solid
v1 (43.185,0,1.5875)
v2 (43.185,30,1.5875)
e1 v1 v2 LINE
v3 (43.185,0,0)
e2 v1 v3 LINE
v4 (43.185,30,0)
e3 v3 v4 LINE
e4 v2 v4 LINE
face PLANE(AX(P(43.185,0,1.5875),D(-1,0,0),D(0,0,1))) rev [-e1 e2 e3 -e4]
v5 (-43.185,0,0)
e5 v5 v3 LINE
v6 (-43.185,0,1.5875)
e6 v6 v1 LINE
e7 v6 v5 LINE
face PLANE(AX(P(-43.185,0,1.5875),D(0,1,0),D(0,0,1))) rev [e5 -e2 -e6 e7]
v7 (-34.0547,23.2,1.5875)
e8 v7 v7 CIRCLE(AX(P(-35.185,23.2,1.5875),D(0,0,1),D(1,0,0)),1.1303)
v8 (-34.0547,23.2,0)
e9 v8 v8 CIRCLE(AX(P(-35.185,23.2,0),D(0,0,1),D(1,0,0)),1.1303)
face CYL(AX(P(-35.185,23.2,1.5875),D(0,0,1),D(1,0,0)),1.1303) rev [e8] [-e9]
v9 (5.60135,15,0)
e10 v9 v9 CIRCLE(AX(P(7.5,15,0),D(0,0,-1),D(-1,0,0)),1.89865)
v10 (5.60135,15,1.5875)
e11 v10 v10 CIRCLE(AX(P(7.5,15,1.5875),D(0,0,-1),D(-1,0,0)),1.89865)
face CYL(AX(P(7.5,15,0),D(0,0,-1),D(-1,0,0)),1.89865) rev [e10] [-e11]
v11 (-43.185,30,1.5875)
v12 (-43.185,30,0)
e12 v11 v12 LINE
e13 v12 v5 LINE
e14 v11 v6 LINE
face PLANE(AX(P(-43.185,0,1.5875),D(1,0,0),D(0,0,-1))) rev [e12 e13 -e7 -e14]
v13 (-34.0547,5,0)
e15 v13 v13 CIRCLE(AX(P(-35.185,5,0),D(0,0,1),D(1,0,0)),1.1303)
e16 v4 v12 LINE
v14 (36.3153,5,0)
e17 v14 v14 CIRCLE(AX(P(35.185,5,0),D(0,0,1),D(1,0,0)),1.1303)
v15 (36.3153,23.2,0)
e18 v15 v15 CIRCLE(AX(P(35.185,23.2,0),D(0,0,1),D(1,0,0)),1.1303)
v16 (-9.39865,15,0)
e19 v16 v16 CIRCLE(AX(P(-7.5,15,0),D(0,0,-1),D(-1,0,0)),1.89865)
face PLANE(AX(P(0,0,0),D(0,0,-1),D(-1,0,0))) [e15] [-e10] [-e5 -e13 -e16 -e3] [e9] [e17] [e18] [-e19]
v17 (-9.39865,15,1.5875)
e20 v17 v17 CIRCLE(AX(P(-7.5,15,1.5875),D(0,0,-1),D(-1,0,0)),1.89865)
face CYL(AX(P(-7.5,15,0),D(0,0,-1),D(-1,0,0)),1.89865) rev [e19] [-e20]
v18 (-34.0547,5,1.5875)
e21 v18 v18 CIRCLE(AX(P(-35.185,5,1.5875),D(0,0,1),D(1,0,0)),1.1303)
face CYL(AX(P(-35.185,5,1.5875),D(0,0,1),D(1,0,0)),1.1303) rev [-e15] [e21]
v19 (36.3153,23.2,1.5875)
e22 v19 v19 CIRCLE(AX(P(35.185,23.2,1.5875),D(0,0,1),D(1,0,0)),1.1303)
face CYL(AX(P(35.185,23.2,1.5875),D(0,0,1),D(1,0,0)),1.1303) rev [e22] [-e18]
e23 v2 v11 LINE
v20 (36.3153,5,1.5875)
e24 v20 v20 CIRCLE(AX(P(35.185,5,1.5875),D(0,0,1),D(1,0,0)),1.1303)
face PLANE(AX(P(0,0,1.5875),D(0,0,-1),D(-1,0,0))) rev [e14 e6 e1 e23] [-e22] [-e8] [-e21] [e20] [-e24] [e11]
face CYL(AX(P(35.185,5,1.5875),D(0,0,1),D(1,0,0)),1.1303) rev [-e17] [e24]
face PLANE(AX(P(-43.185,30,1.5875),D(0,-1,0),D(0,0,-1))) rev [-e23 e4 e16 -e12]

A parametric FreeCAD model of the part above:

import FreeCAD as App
import Part
import Sketcher
Q = App.Units.Quantity


def add_polygon(sketch, points):
    """Adds a closed chain of lines whose ends are joined by coincident constraints."""
    first, n = sketch.GeometryCount, len(points)
    for a, b in zip(points, points[1:] + points[:1]):
        sketch.addGeometry(Part.LineSegment(App.Vector(*a, 0), App.Vector(*b, 0)), False)
    for i in range(n):
        sketch.addConstraint(Sketcher.Constraint("Coincident", first + i, 2, first + (i + 1) % n, 1))

doc = App.newDocument("Part")
body = doc.addObject("PartDesign::Body", "Body")

# Sketch on XY plane
sketch1 = body.newObject("Sketcher::SketchObject", "Sketch")
sketch1.AttachmentSupport = (doc.getObject("XY_Plane"), [""])
sketch1.MapMode = "FlatFace"
add_polygon(sketch1, [(-43, 30), (-43, 0), (43, 0), (43, 30)])  # lines 0-3
sketch1.addConstraint([
    Sketcher.Constraint("Vertical", 0),
    Sketcher.Constraint("Horizontal", 1),
    Sketcher.Constraint("Vertical", 2),
    Sketcher.Constraint("Horizontal", 3),
    Sketcher.Constraint("Symmetric", 0, 2, 1, 2, -1, 1),
    Sketcher.Constraint("DistanceX", 1, 1, 1, 2, 86.37),
    Sketcher.Constraint("DistanceY", 0, 2, 0, 1, 30.0),
])
pad1 = body.newObject("PartDesign::Pad", "Pad")
pad1.Profile = sketch1
pad1.Length = Q("0.0625 in")

# Sketch on XY plane
sketch2 = body.newObject("Sketcher::SketchObject", "Sketch001")
sketch2.AttachmentSupport = (doc.getObject("XY_Plane"), [""])
sketch2.MapMode = "FlatFace"
sketch2.AttachmentOffset = App.Placement(App.Vector(0, 0, 0.0625 * 25.4), App.Rotation())
sketch2.addGeometry([
    Part.Circle(App.Vector(35.2, 23.2, 0), App.Vector(0, 0, 1), 1.1),
    Part.Circle(App.Vector(35.2, 5, 0), App.Vector(0, 0, 1), 1.1),
    Part.Circle(App.Vector(-35.2, 5, 0), App.Vector(0, 0, 1), 1.1),
    Part.Circle(App.Vector(-35.2, 23.2, 0), App.Vector(0, 0, 1), 1.1),
], False)
sketch2.addConstraint([
    Sketcher.Constraint("Equal", 0, 1),
    Sketcher.Constraint("Equal", 1, 2),
    Sketcher.Constraint("Equal", 2, 3),
    Sketcher.Constraint("Symmetric", 1, 3, 2, 3, -2),
    Sketcher.Constraint("Symmetric", 0, 3, 3, 3, -2),
    Sketcher.Constraint("Vertical", 0, 3, 1, 3),
    Sketcher.Constraint("Diameter", 0, Q("0.089 in")),
    Sketcher.Constraint("DistanceX", -1, 1, 0, 3, 35.185),
    Sketcher.Constraint("DistanceY", -1, 1, 0, 3, 23.2),
    Sketcher.Constraint("DistanceY", -1, 1, 1, 3, 5.0),
])
doc.recompute()
hole = body.newObject("PartDesign::Hole", "Hole")
hole.Profile = sketch2
hole.ThreadType = "None"
hole.Diameter = Q("0.089 in")
hole.DepthType = "ThroughAll"

# Sketch on XY plane
sketch3 = body.newObject("Sketcher::SketchObject", "Sketch002")
sketch3.AttachmentSupport = (doc.getObject("XY_Plane"), [""])
sketch3.MapMode = "FlatFace"
sketch3.addGeometry([
    Part.Circle(App.Vector(-7.5, 15, 0), App.Vector(0, 0, 1), 1.9),
    Part.Circle(App.Vector(7.5, 15, 0), App.Vector(0, 0, 1), 1.9),
], False)
sketch3.addConstraint([
    Sketcher.Constraint("Equal", 0, 1),
    Sketcher.Constraint("Symmetric", 0, 3, 1, 3, -2),
    Sketcher.Constraint("Diameter", 0, Q("0.1495 in")),
    Sketcher.Constraint("DistanceX", 0, 3, -1, 1, 7.5),
    Sketcher.Constraint("DistanceY", -1, 1, 0, 3, 15.0),
])
doc.recompute()
hole2 = body.newObject("PartDesign::Hole", "Hole001")
hole2.Profile = sketch3
hole2.ThreadType = "None"
hole2.Diameter = Q("0.1495 in")
hole2.DepthType = "ThroughAll"
hole2.Reversed = True

doc.recompute()
